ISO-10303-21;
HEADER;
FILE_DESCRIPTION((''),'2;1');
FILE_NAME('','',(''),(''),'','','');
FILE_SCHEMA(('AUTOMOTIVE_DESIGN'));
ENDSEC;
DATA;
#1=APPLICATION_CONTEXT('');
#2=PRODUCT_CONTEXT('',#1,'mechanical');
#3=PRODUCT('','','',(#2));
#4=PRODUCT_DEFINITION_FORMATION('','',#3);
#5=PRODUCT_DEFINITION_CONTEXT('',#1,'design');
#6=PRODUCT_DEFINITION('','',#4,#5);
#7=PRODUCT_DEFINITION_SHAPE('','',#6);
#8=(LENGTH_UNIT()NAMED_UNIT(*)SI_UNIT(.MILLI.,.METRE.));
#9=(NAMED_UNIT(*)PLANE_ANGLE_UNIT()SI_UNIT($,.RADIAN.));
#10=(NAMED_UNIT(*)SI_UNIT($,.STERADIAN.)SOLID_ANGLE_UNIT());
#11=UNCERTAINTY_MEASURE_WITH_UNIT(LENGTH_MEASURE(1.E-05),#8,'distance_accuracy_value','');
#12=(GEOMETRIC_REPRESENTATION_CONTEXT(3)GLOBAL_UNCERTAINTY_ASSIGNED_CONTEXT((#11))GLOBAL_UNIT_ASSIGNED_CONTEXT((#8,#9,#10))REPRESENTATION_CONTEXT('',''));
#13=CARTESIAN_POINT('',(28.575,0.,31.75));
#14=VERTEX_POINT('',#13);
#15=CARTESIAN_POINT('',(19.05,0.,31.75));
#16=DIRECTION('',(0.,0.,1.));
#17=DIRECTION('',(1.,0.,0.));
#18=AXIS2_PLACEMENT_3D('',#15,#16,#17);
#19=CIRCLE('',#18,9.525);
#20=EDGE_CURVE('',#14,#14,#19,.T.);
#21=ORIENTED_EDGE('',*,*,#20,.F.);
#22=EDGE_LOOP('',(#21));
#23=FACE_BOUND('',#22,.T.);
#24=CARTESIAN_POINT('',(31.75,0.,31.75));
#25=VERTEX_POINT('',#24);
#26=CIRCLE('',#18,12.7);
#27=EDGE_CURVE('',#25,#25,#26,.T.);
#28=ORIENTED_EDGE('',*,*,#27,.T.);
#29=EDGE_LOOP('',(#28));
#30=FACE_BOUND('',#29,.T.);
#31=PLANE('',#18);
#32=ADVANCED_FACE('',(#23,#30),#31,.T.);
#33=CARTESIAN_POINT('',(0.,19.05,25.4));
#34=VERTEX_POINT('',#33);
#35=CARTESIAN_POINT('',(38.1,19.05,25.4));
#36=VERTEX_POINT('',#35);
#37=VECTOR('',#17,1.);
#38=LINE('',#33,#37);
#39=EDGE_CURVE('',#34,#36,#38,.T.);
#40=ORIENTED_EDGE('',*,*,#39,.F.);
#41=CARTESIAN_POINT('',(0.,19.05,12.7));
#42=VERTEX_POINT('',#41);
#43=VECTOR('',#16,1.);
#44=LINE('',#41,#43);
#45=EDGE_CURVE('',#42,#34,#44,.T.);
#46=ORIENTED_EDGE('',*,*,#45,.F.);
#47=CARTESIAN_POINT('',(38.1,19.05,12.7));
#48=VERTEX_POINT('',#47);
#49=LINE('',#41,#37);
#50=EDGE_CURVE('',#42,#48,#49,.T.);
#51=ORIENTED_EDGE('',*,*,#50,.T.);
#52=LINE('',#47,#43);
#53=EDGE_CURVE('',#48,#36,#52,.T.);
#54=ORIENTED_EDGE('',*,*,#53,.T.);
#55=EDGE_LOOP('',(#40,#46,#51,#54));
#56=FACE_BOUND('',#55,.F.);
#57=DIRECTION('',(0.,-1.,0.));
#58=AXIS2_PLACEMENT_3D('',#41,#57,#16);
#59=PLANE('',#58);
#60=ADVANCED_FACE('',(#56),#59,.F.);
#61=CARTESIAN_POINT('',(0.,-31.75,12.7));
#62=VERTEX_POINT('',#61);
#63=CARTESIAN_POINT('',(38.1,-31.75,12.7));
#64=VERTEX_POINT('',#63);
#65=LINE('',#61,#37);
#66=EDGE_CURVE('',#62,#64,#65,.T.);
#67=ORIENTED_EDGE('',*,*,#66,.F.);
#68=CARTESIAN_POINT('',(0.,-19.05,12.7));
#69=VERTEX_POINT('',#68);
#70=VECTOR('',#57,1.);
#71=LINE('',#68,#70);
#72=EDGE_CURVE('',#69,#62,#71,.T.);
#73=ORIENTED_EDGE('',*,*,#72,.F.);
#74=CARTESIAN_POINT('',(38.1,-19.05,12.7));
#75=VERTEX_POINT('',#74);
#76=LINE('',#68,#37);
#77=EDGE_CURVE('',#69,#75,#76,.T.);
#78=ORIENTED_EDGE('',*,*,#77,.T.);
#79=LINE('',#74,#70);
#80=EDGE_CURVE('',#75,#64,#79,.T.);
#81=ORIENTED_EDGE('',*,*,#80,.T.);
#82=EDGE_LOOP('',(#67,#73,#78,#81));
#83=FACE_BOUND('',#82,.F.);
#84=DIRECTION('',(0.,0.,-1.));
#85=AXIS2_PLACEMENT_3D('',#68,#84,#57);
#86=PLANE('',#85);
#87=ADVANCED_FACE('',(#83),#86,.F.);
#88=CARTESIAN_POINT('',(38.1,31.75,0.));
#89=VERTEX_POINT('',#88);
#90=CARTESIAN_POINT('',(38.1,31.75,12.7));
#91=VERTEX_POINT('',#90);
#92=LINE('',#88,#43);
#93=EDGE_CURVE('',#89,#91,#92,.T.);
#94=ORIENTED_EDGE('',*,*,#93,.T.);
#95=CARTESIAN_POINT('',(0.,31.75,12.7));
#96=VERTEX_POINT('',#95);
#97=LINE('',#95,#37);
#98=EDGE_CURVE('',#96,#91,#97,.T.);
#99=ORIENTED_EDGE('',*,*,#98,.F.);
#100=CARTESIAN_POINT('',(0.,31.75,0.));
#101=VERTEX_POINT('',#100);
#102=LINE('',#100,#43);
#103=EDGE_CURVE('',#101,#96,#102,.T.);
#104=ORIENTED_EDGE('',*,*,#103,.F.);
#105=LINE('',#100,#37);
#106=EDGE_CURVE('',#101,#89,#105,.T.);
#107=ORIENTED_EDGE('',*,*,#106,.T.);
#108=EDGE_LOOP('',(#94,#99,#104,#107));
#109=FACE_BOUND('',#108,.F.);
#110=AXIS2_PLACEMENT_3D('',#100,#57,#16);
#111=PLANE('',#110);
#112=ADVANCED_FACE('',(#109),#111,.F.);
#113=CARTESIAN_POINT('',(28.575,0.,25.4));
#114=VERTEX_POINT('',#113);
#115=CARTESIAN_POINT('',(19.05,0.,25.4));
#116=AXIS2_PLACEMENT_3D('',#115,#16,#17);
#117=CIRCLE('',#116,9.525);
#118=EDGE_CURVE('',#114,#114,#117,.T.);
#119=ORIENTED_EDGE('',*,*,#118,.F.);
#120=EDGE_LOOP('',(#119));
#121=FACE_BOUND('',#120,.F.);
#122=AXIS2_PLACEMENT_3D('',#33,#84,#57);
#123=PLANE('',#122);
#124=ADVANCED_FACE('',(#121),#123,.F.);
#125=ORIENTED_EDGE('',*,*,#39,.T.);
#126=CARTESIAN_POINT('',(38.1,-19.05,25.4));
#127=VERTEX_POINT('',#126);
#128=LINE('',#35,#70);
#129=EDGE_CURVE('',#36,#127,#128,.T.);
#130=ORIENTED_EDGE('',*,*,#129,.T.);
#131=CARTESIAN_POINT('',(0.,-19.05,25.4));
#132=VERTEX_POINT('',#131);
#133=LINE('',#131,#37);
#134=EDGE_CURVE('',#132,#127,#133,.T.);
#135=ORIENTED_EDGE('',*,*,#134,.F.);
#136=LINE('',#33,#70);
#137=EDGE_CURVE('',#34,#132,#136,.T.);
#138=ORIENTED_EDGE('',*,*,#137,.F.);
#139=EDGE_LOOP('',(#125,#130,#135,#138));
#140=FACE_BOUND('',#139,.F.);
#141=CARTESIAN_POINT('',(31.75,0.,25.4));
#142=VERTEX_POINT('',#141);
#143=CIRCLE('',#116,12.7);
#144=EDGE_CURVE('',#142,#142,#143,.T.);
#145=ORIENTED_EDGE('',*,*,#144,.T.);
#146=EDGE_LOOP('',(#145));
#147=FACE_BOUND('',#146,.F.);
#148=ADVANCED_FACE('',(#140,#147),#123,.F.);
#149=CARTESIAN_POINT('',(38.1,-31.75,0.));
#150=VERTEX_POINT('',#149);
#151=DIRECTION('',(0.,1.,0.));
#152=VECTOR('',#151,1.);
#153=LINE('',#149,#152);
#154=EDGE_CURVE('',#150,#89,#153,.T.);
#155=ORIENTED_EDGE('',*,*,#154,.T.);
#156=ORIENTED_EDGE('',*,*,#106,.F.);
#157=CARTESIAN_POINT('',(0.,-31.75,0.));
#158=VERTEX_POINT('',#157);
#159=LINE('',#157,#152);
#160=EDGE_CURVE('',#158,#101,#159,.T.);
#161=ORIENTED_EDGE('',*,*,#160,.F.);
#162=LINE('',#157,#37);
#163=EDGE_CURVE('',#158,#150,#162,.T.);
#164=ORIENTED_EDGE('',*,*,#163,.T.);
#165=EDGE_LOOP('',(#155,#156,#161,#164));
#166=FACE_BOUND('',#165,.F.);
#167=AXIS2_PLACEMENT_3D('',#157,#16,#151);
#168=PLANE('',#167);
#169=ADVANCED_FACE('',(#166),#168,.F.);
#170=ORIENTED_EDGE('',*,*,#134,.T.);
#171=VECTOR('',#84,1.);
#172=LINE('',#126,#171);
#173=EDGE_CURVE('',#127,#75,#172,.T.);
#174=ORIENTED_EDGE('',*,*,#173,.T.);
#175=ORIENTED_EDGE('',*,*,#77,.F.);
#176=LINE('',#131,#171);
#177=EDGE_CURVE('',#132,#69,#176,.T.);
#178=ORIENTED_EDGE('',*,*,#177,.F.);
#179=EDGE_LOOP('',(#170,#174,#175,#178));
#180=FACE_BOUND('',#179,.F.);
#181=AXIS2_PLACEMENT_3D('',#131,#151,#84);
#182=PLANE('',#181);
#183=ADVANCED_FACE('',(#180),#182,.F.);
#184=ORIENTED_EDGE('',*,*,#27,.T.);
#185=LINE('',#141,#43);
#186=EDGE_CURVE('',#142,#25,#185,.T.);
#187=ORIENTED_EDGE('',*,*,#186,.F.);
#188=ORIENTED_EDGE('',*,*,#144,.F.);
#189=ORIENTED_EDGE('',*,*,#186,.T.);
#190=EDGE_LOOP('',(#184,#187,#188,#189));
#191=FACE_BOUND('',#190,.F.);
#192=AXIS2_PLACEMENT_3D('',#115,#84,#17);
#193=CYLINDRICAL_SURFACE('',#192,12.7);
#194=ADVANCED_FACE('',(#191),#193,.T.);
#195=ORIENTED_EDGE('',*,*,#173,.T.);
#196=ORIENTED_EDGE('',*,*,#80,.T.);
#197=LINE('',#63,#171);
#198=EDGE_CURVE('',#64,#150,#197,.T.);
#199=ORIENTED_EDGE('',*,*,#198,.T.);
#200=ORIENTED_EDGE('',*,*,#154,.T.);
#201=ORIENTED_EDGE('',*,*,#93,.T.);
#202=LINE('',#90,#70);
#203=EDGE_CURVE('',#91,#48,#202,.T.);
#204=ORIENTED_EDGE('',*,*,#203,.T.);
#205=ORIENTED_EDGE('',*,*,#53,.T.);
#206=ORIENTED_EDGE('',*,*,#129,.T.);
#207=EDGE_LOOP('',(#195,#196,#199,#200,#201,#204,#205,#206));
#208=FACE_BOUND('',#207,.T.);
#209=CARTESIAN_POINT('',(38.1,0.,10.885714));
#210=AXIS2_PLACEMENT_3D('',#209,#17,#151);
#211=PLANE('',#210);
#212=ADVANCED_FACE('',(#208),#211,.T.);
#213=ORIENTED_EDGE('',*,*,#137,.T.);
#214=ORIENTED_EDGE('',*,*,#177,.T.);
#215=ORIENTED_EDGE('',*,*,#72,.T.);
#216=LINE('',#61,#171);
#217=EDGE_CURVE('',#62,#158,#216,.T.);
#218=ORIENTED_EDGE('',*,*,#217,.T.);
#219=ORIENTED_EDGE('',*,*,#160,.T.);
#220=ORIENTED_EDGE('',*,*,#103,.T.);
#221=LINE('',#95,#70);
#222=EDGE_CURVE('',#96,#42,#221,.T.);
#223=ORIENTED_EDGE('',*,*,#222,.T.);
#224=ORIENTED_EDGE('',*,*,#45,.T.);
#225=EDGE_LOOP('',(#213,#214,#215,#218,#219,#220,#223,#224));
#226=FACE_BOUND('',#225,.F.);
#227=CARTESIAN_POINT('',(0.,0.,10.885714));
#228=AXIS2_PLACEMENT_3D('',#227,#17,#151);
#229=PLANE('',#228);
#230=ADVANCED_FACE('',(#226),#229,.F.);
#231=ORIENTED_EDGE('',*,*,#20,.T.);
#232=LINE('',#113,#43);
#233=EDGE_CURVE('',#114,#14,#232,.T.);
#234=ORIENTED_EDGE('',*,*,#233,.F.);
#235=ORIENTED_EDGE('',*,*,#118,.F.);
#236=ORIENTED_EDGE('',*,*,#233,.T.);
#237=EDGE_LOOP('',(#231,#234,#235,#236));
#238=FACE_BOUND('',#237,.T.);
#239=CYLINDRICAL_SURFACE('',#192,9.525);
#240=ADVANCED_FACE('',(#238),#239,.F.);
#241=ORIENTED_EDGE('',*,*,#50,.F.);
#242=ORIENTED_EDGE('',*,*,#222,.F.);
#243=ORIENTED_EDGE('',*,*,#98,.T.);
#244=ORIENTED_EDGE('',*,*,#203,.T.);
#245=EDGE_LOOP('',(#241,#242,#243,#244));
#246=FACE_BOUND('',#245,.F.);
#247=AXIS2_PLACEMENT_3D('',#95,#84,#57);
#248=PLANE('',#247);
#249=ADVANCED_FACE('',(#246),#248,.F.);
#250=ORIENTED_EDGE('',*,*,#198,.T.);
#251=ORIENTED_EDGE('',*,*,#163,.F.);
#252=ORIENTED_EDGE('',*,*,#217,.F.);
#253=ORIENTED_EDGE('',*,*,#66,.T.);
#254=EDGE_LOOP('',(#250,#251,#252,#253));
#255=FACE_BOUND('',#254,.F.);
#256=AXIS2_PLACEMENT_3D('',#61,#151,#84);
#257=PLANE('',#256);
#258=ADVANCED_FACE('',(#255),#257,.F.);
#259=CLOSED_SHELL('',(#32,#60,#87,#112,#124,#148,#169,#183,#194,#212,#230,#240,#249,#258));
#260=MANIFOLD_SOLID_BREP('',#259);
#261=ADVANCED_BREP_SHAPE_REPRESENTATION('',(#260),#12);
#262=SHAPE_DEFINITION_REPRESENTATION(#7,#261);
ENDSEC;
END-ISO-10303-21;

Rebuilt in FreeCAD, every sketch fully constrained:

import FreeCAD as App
import Part
import Sketcher
from FreeCAD import Vector
Q = App.Units.Quantity


def add_polygon(sketch, points):
    """Adds a closed chain of lines whose ends are joined by coincident constraints."""
    first, n = sketch.GeometryCount, len(points)
    for a, b in zip(points, points[1:] + points[:1]):
        sketch.addGeometry(Part.LineSegment(App.Vector(*a, 0), App.Vector(*b, 0)), False)
    for i in range(n):
        sketch.addConstraint(Sketcher.Constraint("Coincident", first + i, 2, first + (i + 1) % n, 1))

doc = App.newDocument("Part")
body = doc.addObject("PartDesign::Body", "Body")

sketch1 = body.newObject("Sketcher::SketchObject", "Sketch")
sketch1.AttachmentSupport = (doc.getObject("YZ_Plane"), [""])
sketch1.MapMode = "FlatFace"
add_polygon(sketch1, [(-32, 0), (32, 0), (32, 13), (19, 13), (19, 25), (-19, 25), (-19, 13), (-32, 13)])
sketch1.addConstraint([
    Sketcher.Constraint("Horizontal", 0),
    Sketcher.Constraint("Vertical", 1),
    Sketcher.Constraint("Horizontal", 2),
    Sketcher.Constraint("Vertical", 3),
    Sketcher.Constraint("Horizontal", 4),
    Sketcher.Constraint("Vertical", 5),
    Sketcher.Constraint("Horizontal", 6),
    Sketcher.Constraint("Vertical", 7),
    Sketcher.Constraint("Symmetric", 0, 2, 7, 2, -1, 1),
    Sketcher.Constraint("Symmetric", 2, 2, 5, 2, -2),
    Sketcher.Constraint("Equal", 6, 1),
    Sketcher.Constraint("Equal", 1, 3),
    Sketcher.Constraint("DistanceX", 0, 1, 0, 2, Q("2.5 in")),
    Sketcher.Constraint("DistanceX", 2, 2, 2, 1, Q("0.5 in")),
])
pad1 = body.newObject("PartDesign::Pad", "Pad")
pad1.Profile = sketch1
pad1.Length = Q("1.5 in")

sketch2 = body.newObject("Sketcher::SketchObject", "Sketch001")
sketch2.AttachmentSupport = (doc.getObject("XY_Plane"), [""])
sketch2.MapMode = "FlatFace"
sketch2.AttachmentOffset = App.Placement(Vector(0, 0, 1 * 25.4), App.Rotation())
sketch2.addGeometry([
    Part.Circle(Vector(19, 0, 0), Vector(0, 0, 1), 13),
    Part.Circle(Vector(19, 0, 0), Vector(0, 0, 1), 10),
], False)
sketch2.addConstraint([
    Sketcher.Constraint("Coincident", 1, 3, 0, 3),
    Sketcher.Constraint("PointOnObject", 0, 3, -1),
    Sketcher.Constraint("Diameter", 0, Q("1 in")),
    Sketcher.Constraint("Diameter", 1, Q("0.75 in")),
    Sketcher.Constraint("DistanceX", -1, 1, 0, 3, Q("0.75 in")),
])
pad2 = body.newObject("PartDesign::Pad", "Pad001")
pad2.Profile = sketch2
pad2.Length = Q("0.25 in")

doc.recompute()
